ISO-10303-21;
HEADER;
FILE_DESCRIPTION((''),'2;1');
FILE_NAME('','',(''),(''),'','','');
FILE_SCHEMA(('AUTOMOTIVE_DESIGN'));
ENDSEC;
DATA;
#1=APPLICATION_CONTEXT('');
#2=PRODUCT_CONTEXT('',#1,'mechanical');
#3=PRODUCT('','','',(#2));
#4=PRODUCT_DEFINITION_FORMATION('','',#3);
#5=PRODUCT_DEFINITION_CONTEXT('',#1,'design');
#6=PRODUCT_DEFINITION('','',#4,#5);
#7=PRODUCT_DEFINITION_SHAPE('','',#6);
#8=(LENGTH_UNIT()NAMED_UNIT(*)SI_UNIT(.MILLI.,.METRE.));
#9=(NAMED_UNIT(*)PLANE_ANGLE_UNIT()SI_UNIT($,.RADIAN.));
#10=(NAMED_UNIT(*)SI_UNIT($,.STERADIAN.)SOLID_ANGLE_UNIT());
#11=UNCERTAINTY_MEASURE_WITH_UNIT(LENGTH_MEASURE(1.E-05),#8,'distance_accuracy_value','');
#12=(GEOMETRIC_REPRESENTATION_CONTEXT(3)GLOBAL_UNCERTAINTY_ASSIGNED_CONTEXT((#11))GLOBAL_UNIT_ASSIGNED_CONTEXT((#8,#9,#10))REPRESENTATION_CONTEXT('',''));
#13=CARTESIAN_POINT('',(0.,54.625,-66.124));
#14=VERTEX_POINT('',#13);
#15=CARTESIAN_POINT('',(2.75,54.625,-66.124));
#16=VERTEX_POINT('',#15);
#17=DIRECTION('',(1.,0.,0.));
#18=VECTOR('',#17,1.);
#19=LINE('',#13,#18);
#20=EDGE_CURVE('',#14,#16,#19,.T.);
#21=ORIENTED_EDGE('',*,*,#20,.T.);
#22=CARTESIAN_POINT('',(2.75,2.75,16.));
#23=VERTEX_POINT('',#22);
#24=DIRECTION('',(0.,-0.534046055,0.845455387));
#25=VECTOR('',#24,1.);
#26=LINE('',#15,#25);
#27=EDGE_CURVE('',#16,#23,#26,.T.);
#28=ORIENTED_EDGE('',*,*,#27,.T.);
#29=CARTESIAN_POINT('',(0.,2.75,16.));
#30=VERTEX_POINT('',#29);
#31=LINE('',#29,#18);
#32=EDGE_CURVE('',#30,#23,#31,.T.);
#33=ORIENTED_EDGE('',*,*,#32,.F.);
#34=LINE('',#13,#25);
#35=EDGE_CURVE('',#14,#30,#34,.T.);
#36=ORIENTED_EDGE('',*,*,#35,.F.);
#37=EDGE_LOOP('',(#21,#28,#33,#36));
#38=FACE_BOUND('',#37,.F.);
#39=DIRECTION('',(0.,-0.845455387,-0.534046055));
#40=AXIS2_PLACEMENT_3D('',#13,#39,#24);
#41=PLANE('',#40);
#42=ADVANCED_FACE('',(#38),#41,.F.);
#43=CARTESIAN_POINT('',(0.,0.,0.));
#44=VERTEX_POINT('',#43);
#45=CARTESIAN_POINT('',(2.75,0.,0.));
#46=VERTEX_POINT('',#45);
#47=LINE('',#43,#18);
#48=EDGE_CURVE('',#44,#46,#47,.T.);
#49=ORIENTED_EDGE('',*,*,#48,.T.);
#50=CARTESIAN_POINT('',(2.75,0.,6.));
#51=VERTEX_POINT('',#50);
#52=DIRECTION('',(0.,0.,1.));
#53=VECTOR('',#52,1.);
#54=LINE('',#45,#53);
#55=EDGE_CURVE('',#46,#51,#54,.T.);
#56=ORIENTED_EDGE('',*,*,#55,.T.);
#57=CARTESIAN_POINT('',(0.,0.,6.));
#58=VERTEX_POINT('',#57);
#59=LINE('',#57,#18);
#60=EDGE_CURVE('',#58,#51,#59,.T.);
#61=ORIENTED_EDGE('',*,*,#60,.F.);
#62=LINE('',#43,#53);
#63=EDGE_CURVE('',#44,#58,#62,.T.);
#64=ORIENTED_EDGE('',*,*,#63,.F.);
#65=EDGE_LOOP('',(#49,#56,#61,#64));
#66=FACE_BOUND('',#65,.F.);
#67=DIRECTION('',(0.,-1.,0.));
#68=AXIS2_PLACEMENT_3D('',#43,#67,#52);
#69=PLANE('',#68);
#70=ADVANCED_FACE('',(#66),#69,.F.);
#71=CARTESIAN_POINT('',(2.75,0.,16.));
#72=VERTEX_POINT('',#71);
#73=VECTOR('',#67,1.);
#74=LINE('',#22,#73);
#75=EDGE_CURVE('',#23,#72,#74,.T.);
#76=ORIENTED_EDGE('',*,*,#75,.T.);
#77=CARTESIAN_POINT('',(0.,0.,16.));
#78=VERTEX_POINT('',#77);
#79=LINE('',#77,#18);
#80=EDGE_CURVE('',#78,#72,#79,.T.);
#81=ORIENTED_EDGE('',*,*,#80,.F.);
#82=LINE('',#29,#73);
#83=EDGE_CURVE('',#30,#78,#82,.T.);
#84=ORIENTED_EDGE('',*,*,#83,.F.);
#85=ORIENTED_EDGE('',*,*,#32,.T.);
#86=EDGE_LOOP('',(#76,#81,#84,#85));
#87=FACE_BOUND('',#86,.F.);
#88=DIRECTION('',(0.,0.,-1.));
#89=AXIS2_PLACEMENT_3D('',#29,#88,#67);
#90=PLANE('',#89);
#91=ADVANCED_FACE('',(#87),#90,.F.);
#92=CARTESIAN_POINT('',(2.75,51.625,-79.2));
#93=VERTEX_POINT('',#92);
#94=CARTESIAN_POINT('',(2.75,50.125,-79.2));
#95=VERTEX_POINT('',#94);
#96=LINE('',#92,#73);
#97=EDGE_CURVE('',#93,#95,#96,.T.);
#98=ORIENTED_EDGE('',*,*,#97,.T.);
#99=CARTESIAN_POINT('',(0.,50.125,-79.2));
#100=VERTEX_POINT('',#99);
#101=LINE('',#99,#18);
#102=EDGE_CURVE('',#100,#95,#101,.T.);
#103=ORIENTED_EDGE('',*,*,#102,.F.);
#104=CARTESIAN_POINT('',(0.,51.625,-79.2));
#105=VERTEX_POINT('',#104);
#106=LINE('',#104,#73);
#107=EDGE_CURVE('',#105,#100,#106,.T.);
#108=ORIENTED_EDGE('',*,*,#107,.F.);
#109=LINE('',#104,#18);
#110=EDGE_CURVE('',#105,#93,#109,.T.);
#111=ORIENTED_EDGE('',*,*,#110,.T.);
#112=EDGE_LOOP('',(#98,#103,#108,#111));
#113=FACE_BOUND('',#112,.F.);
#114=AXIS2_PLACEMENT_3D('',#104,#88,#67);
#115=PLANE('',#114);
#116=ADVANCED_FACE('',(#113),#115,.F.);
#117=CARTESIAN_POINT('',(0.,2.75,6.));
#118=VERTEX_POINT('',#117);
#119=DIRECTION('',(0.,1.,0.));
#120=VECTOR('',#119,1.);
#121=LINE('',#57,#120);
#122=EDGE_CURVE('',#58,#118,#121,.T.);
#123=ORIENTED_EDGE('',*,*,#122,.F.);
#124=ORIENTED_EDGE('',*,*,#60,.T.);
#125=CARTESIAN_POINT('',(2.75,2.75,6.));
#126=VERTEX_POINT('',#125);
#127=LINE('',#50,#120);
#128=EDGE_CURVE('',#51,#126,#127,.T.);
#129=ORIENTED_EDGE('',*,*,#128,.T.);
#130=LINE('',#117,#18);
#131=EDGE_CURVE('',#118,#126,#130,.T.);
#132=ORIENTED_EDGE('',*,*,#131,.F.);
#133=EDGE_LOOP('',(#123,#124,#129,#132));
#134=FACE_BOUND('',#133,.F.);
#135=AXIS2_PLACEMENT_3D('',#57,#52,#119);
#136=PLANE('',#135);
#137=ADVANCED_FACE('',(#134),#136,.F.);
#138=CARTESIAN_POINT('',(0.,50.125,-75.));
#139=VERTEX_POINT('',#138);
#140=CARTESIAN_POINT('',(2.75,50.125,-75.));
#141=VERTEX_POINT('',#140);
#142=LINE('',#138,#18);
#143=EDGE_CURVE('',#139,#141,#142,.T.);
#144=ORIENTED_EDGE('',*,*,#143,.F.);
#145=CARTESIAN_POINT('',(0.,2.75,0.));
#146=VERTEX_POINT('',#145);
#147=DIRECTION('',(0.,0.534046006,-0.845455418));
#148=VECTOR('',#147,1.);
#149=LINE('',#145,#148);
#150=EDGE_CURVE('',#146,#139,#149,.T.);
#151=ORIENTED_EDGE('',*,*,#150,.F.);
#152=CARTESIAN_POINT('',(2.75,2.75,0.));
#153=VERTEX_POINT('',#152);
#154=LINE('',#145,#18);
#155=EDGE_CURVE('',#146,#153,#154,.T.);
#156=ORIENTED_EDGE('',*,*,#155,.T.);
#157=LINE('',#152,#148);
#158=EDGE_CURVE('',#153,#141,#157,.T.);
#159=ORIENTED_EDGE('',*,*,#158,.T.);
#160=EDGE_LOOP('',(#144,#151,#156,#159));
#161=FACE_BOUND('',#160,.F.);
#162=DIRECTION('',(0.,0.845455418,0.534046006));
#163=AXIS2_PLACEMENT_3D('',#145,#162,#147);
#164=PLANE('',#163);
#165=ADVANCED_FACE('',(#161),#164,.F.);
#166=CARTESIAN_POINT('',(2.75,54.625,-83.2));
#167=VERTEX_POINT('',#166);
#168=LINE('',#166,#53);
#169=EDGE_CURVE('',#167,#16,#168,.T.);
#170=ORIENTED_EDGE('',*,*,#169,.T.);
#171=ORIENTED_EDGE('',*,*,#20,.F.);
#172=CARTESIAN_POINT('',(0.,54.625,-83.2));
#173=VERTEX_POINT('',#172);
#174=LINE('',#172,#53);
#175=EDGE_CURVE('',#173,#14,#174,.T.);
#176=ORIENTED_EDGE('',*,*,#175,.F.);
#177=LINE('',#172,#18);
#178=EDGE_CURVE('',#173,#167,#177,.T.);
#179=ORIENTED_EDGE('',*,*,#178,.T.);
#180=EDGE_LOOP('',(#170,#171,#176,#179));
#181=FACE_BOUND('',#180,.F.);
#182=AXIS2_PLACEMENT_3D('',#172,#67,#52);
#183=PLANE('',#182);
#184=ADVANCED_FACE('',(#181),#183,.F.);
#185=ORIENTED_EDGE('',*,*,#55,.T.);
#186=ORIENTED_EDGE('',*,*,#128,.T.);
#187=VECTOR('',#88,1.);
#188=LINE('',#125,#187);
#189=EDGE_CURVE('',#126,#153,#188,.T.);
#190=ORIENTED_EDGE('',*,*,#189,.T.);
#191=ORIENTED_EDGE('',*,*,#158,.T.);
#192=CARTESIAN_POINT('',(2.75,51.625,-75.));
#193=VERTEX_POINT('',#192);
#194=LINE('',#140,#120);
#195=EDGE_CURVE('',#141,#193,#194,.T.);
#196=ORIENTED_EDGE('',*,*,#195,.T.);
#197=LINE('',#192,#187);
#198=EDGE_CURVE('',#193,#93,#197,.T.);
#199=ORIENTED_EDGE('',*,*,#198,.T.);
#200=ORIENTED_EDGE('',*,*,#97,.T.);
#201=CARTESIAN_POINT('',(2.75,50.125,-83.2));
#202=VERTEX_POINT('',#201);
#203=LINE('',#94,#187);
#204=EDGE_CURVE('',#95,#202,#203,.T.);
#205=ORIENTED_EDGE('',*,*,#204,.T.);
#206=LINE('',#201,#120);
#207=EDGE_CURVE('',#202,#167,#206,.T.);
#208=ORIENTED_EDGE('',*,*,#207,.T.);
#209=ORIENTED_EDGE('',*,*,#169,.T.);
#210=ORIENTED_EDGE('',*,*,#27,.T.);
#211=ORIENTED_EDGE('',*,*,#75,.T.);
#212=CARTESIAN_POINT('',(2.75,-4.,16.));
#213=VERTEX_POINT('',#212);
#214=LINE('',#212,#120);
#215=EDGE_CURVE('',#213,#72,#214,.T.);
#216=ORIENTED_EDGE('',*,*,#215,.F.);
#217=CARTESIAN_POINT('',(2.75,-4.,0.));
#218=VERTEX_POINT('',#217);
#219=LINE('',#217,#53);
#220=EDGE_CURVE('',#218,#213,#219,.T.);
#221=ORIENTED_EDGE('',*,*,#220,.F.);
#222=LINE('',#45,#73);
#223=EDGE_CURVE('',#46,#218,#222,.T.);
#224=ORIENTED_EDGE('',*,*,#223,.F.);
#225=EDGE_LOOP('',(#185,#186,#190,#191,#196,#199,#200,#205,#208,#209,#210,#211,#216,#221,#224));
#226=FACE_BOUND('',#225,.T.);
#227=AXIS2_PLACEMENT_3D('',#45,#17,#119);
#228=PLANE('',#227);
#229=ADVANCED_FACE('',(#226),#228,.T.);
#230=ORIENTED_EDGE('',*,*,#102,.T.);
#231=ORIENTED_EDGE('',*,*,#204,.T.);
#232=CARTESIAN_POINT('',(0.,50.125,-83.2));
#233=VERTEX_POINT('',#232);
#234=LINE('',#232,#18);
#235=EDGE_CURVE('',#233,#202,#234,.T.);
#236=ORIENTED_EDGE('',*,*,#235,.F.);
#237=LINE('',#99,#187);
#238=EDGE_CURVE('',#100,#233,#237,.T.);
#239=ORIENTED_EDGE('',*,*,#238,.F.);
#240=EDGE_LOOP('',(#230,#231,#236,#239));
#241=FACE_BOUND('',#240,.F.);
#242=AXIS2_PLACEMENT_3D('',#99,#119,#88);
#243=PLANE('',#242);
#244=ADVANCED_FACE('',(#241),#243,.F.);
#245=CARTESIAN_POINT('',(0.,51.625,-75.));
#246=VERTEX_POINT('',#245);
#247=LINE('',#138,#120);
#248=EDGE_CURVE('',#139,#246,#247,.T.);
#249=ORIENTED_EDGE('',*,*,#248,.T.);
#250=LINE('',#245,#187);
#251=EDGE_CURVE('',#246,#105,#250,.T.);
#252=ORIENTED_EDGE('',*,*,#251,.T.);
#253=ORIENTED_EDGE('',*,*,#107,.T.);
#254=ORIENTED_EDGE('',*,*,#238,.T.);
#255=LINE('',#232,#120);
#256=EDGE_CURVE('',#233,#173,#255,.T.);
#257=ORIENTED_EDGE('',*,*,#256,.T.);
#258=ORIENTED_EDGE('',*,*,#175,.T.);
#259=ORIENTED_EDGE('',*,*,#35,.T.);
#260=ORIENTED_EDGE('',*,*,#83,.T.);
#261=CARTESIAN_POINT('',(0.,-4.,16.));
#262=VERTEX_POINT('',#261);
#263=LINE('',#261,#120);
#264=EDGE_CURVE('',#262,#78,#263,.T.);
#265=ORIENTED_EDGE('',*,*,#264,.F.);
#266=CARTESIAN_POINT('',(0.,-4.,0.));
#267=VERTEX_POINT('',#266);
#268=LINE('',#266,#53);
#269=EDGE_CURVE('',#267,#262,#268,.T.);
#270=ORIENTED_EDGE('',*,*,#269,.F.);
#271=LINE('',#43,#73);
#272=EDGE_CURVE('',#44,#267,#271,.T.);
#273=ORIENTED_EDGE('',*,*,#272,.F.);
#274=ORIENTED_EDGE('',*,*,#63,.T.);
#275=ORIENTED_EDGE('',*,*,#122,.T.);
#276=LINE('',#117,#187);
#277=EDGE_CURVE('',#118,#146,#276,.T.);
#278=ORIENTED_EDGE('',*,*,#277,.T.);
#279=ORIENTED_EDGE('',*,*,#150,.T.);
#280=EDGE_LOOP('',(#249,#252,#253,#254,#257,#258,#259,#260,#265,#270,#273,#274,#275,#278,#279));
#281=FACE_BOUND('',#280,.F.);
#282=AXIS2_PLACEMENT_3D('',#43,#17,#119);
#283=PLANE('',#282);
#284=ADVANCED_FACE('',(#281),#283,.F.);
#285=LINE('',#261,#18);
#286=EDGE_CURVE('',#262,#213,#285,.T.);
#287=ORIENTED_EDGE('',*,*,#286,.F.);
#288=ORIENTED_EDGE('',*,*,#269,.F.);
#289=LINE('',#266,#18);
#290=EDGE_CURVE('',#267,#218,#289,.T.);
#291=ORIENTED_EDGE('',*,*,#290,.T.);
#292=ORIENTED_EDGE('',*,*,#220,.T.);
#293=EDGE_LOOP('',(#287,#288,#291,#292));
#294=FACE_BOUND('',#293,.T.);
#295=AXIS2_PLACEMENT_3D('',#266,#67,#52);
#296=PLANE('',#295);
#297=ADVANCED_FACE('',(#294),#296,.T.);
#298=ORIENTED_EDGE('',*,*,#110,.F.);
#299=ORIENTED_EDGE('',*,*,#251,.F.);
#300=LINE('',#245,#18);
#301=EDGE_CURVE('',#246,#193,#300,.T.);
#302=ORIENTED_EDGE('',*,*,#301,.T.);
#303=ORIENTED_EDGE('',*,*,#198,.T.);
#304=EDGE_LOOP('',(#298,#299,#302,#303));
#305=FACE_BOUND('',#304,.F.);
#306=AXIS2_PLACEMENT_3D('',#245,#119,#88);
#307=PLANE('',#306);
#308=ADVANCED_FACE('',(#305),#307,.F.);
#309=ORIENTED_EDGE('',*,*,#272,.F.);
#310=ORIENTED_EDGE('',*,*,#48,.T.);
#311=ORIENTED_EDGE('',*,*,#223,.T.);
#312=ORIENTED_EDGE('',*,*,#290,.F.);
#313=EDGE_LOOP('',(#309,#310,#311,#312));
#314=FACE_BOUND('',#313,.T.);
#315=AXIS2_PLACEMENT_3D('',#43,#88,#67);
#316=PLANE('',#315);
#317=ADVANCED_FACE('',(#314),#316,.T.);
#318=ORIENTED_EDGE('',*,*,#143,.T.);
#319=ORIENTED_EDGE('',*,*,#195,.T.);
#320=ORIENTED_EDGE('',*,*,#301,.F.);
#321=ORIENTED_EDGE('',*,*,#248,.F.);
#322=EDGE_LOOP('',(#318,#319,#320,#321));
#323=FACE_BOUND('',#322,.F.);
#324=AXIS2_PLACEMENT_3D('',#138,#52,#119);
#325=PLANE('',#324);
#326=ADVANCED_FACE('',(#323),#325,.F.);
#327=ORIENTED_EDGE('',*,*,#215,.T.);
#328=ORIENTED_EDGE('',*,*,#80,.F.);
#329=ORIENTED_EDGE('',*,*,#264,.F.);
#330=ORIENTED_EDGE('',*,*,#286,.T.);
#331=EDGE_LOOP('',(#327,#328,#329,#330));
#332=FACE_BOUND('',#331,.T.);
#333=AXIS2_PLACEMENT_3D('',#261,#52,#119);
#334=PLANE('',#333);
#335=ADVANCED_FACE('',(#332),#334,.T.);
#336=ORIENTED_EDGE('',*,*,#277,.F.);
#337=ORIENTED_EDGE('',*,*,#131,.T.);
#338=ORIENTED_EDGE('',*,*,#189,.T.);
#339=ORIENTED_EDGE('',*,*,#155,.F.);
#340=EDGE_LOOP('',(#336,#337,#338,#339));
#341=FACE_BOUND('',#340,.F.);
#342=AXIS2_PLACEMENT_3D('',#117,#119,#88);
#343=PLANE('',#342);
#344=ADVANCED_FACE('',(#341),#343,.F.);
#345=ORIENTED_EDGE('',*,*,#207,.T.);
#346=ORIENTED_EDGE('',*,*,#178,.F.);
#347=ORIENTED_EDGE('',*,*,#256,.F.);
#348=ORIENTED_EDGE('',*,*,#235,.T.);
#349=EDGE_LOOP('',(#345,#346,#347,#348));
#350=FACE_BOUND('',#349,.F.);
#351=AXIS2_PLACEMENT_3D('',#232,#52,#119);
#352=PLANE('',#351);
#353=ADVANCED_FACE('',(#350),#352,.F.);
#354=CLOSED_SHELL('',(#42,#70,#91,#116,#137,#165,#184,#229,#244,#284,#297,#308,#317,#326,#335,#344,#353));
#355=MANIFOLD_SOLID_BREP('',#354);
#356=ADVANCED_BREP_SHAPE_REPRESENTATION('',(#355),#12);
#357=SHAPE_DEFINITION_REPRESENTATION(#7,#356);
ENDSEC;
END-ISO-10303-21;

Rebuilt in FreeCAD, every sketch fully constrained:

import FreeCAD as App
import Part
import Sketcher
from FreeCAD import Vector
Q = App.Units.Quantity

doc = App.newDocument("Part")
body = doc.addObject("PartDesign::Body", "Body")

# Sketch on YZ plane
sketch1 = doc.addObject("Sketcher::SketchObject", "Sketch")
body.addObject(sketch1)
sketch1.AttachmentSupport = (doc.YZ_Plane, [""])
sketch1.MapMode = "FlatFace"
sketch1.addGeometry(Part.LineSegment(Vector(2.75, 6, 0), Vector(2.75, 0, 0)), False)
sketch1.addGeometry(Part.LineSegment(Vector(2.75, 0, 0), Vector(50.125, -75, 0)), False)
sketch1.addGeometry(Part.LineSegment(Vector(50.125, -75, 0), Vector(51.625, -75, 0)), False)
sketch1.addGeometry(Part.LineSegment(Vector(51.625, -75, 0), Vector(51.625, -79.2, 0)), False)
sketch1.addGeometry(Part.LineSegment(Vector(51.625, -79.2, 0), Vector(50.125, -79.2, 0)), False)
sketch1.addGeometry(Part.LineSegment(Vector(50.125, -79.2, 0), Vector(50.125, -83.2, 0)), False)
sketch1.addGeometry(Part.LineSegment(Vector(50.125, -83.2, 0), Vector(54.625, -83.2, 0)), False)
sketch1.addGeometry(Part.LineSegment(Vector(54.625, -83.2, 0), Vector(54.625, -66.124, 0)), False)
sketch1.addGeometry(Part.LineSegment(Vector(54.625, -66.124, 0), Vector(2.75, 16, 0)), False)
sketch1.addGeometry(Part.LineSegment(Vector(2.75, 16, 0), Vector(-4, 16, 0)), False)
sketch1.addGeometry(Part.LineSegment(Vector(-4, 16, 0), Vector(-4, 0, 0)), False)
sketch1.addGeometry(Part.LineSegment(Vector(-4, 0, 0), Vector(0, 0, 0)), False)
sketch1.addGeometry(Part.LineSegment(Vector(0, 0, 0), Vector(0, 6, 0)), False)
sketch1.addGeometry(Part.LineSegment(Vector(0, 6, 0), Vector(2.75, 6, 0)), False)
sketch1.addConstraint(Sketcher.Constraint("Coincident", 0, 2, 1, 1))
sketch1.addConstraint(Sketcher.Constraint("Coincident", 1, 2, 2, 1))
sketch1.addConstraint(Sketcher.Constraint("Coincident", 2, 2, 3, 1))
sketch1.addConstraint(Sketcher.Constraint("Coincident", 3, 2, 4, 1))
sketch1.addConstraint(Sketcher.Constraint("Coincident", 4, 2, 5, 1))
sketch1.addConstraint(Sketcher.Constraint("Coincident", 5, 2, 6, 1))
sketch1.addConstraint(Sketcher.Constraint("Coincident", 6, 2, 7, 1))
sketch1.addConstraint(Sketcher.Constraint("Coincident", 7, 2, 8, 1))
sketch1.addConstraint(Sketcher.Constraint("Coincident", 8, 2, 9, 1))
sketch1.addConstraint(Sketcher.Constraint("Coincident", 9, 2, 10, 1))
sketch1.addConstraint(Sketcher.Constraint("Coincident", 10, 2, 11, 1))
sketch1.addConstraint(Sketcher.Constraint("Coincident", 11, 2, 12, 1))
sketch1.addConstraint(Sketcher.Constraint("Coincident", 12, 2, 13, 1))
sketch1.addConstraint(Sketcher.Constraint("Coincident", 13, 2, 0, 1))
sketch1.addConstraint(Sketcher.Constraint("Vertical", 0))
sketch1.addConstraint(Sketcher.Constraint("Horizontal", 2))
sketch1.addConstraint(Sketcher.Constraint("Vertical", 3))
sketch1.addConstraint(Sketcher.Constraint("Horizontal", 4))
sketch1.addConstraint(Sketcher.Constraint("Vertical", 5))
sketch1.addConstraint(Sketcher.Constraint("Horizontal", 6))
sketch1.addConstraint(Sketcher.Constraint("Vertical", 7))
sketch1.addConstraint(Sketcher.Constraint("Horizontal", 9))
sketch1.addConstraint(Sketcher.Constraint("Vertical", 10))
sketch1.addConstraint(Sketcher.Constraint("Horizontal", 11))
sketch1.addConstraint(Sketcher.Constraint("Vertical", 12))
sketch1.addConstraint(Sketcher.Constraint("Horizontal", 13))
sketch1.addConstraint(Sketcher.Constraint("Coincident", 11, 2, -1, 1))
sketch1.addConstraint(Sketcher.Constraint("PointOnObject", 0, 2, -1))
sketch1.addConstraint(Sketcher.Constraint("Parallel", 1, 8))
sketch1.addConstraint(Sketcher.Constraint("Vertical", 1, 2, 4, 2))
sketch1.addConstraint(Sketcher.Constraint("Vertical", 0, 2, 8, 2))
sketch1.addConstraint(Sketcher.Constraint("Equal", 11, 5))
sketch1.addConstraint(Sketcher.Constraint("DistanceX", 11, 1, 11, 2, Q("4 mm")))
sketch1.addConstraint(Sketcher.Constraint("DistanceY", 0, 2, 0, 1, Q("6 mm")))
sketch1.addConstraint(Sketcher.Constraint("DistanceX", 2, 1, 2, 2, Q("1.5 mm")))
sketch1.addConstraint(Sketcher.Constraint("DistanceY", 3, 2, 3, 1, Q("4.2 mm")))
sketch1.addConstraint(Sketcher.Constraint("DistanceX", 3, 2, 6, 2, Q("3 mm")))
sketch1.addConstraint(Sketcher.Constraint("DistanceY", 12, 2, 8, 2, Q("10 mm")))
sketch1.addConstraint(Sketcher.Constraint("DistanceX", 13, 1, 13, 2, Q("2.75 mm")))
sketch1.addConstraint(Sketcher.Constraint("DistanceY", 1, 2, -1, 1, Q("75 mm")))
sketch1.addConstraint(Sketcher.Constraint("DistanceX", 0, 2, 2, 2, Q("48.875 mm")))
pad1 = doc.addObject("PartDesign::Pad", "Pad")
body.addObject(pad1)
pad1.Profile = sketch1
pad1.Length = 2.75

doc.recompute()
